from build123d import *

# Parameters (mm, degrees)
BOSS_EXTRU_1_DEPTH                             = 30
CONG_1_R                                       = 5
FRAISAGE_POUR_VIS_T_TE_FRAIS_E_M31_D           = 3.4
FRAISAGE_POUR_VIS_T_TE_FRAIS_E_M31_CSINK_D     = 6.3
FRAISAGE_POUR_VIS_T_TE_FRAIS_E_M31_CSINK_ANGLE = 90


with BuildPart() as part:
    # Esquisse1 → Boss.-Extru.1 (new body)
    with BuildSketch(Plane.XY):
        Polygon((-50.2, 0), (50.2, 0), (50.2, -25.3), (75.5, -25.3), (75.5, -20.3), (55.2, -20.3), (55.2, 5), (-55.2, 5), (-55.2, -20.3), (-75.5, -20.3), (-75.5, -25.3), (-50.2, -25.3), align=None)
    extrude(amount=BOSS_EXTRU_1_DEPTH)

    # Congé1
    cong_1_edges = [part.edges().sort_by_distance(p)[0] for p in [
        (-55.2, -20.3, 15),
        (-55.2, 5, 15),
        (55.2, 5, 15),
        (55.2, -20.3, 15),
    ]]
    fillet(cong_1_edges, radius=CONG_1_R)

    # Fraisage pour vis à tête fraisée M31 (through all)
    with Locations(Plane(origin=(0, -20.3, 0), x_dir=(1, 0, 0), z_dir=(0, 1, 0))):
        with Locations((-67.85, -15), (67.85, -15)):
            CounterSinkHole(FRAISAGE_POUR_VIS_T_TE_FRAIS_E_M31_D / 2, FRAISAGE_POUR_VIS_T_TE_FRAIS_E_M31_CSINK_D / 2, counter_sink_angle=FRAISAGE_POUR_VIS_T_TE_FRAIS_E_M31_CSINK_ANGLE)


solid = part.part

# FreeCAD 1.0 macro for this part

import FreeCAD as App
import Part
import Sketcher
from FreeCAD import Vector
Q = App.Units.Quantity


def edges_at(feature, points):
    """Names of the edges that pass closest to the given points."""
    edges = feature.Shape.Edges
    near = lambda p: min(range(len(edges)), key=lambda i: edges[i].distToShape(Part.Vertex(*p))[0])
    return sorted({f"Edge{near(p) + 1}" for p in points})


def add_polygon(sketch, points):
    """Adds a closed chain of lines whose ends are joined by coincident constraints."""
    first, n = sketch.GeometryCount, len(points)
    for a, b in zip(points, points[1:] + points[:1]):
        sketch.addGeometry(Part.LineSegment(App.Vector(*a, 0), App.Vector(*b, 0)), False)
    for i in range(n):
        sketch.addConstraint(Sketcher.Constraint("Coincident", first + i, 2, first + (i + 1) % n, 1))

doc = App.newDocument("Part")
body = doc.addObject("PartDesign::Body", "Body")

# Sketch on XY plane
sketch1 = body.newObject("Sketcher::SketchObject", "Sketch")
sketch1.AttachmentSupport = (doc.getObject("XY_Plane"), [""])
sketch1.MapMode = "FlatFace"
add_polygon(sketch1, [(-50, 0), (50, 0), (50, -25), (76, -25), (76, -20), (55, -20), (55, 5), (-55, 5), (-55, -20), (-76, -20), (-76, -25), (-50, -25)])  # lines 0-11
sketch1.addConstraint([
    Sketcher.Constraint("Horizontal", 0),
    Sketcher.Constraint("Vertical", 1),
    Sketcher.Constraint("Horizontal", 2),
    Sketcher.Constraint("Vertical", 3),
    Sketcher.Constraint("Horizontal", 4),
    Sketcher.Constraint("Vertical", 5),
    Sketcher.Constraint("Horizontal", 6),
    Sketcher.Constraint("Vertical", 7),
    Sketcher.Constraint("Horizontal", 8),
    Sketcher.Constraint("Vertical", 9),
    Sketcher.Constraint("Horizontal", 10),
    Sketcher.Constraint("Vertical", 11),
    Sketcher.Constraint("Symmetric", 0, 2, 11, 2, -1, 1),
    Sketcher.Constraint("Symmetric", 4, 2, 7, 2, -2),
    Sketcher.Constraint("Symmetric", 2, 2, 9, 2, -2),
    Sketcher.Constraint("Equal", 10, 1),
    Sketcher.Constraint("Equal", 1, 5),
    Sketcher.Constraint("DistanceY", 3, 1, 3, 2, Q("5 mm")),
    Sketcher.Constraint("DistanceX", 0, 1, 0, 2, Q("100.4 mm")),
    Sketcher.Constraint("DistanceX", 2, 1, 2, 2, Q("25.3 mm")),
    Sketcher.Constraint("DistanceX", 4, 2, 4, 1, Q("20.3 mm")),
])
pad1 = body.newObject("PartDesign::Pad", "Pad")
pad1.Profile = sketch1
pad1.Length = 30
doc.recompute()

fillet = body.newObject("PartDesign::Fillet", "Fillet")
fillet.Base = (pad1, edges_at(pad1, [
    (-55.2, -20.3, 15),
    (-55.2, 5, 15),
    (55.2, 5, 15),
    (55.2, -20.3, 15),
]))
fillet.Radius = 5

# Sketch on XZ plane
sketch2 = body.newObject("Sketcher::SketchObject", "Sketch001")
sketch2.AttachmentSupport = (doc.getObject("XZ_Plane"), [""])
sketch2.MapMode = "FlatFace"
sketch2.AttachmentOffset = App.Placement(Vector(0, 0, 20.3), App.Rotation())
sketch2.addGeometry([
    Part.Circle(Vector(-67.8, 15, 0), Vector(0, 0, 1), 1.7),
    Part.Circle(Vector(67.8, 15, 0), Vector(0, 0, 1), 1.7),
], False)
sketch2.addConstraint([
    Sketcher.Constraint("Equal", 0, 1),
    Sketcher.Constraint("Symmetric", 0, 3, 1, 3, -2),
    Sketcher.Constraint("Diameter", 0, Q("3.4 mm")),
    Sketcher.Constraint("DistanceY", -1, 1, 0, 3, Q("15 mm")),
    Sketcher.Constraint("DistanceX", 0, 3, 1, 3, Q("135.7 mm")),
])
doc.recompute()
hole = body.newObject("PartDesign::Hole", "Hole")
hole.Profile = sketch2
hole.ThreadType = "None"
hole.Diameter = 3.4
hole.DepthType = "ThroughAll"
hole.HoleCutType = "Countersink"
hole.HoleCutDiameter = 6.3
hole.HoleCutCountersinkAngle = 90
hole.Reversed = True

doc.recompute()
